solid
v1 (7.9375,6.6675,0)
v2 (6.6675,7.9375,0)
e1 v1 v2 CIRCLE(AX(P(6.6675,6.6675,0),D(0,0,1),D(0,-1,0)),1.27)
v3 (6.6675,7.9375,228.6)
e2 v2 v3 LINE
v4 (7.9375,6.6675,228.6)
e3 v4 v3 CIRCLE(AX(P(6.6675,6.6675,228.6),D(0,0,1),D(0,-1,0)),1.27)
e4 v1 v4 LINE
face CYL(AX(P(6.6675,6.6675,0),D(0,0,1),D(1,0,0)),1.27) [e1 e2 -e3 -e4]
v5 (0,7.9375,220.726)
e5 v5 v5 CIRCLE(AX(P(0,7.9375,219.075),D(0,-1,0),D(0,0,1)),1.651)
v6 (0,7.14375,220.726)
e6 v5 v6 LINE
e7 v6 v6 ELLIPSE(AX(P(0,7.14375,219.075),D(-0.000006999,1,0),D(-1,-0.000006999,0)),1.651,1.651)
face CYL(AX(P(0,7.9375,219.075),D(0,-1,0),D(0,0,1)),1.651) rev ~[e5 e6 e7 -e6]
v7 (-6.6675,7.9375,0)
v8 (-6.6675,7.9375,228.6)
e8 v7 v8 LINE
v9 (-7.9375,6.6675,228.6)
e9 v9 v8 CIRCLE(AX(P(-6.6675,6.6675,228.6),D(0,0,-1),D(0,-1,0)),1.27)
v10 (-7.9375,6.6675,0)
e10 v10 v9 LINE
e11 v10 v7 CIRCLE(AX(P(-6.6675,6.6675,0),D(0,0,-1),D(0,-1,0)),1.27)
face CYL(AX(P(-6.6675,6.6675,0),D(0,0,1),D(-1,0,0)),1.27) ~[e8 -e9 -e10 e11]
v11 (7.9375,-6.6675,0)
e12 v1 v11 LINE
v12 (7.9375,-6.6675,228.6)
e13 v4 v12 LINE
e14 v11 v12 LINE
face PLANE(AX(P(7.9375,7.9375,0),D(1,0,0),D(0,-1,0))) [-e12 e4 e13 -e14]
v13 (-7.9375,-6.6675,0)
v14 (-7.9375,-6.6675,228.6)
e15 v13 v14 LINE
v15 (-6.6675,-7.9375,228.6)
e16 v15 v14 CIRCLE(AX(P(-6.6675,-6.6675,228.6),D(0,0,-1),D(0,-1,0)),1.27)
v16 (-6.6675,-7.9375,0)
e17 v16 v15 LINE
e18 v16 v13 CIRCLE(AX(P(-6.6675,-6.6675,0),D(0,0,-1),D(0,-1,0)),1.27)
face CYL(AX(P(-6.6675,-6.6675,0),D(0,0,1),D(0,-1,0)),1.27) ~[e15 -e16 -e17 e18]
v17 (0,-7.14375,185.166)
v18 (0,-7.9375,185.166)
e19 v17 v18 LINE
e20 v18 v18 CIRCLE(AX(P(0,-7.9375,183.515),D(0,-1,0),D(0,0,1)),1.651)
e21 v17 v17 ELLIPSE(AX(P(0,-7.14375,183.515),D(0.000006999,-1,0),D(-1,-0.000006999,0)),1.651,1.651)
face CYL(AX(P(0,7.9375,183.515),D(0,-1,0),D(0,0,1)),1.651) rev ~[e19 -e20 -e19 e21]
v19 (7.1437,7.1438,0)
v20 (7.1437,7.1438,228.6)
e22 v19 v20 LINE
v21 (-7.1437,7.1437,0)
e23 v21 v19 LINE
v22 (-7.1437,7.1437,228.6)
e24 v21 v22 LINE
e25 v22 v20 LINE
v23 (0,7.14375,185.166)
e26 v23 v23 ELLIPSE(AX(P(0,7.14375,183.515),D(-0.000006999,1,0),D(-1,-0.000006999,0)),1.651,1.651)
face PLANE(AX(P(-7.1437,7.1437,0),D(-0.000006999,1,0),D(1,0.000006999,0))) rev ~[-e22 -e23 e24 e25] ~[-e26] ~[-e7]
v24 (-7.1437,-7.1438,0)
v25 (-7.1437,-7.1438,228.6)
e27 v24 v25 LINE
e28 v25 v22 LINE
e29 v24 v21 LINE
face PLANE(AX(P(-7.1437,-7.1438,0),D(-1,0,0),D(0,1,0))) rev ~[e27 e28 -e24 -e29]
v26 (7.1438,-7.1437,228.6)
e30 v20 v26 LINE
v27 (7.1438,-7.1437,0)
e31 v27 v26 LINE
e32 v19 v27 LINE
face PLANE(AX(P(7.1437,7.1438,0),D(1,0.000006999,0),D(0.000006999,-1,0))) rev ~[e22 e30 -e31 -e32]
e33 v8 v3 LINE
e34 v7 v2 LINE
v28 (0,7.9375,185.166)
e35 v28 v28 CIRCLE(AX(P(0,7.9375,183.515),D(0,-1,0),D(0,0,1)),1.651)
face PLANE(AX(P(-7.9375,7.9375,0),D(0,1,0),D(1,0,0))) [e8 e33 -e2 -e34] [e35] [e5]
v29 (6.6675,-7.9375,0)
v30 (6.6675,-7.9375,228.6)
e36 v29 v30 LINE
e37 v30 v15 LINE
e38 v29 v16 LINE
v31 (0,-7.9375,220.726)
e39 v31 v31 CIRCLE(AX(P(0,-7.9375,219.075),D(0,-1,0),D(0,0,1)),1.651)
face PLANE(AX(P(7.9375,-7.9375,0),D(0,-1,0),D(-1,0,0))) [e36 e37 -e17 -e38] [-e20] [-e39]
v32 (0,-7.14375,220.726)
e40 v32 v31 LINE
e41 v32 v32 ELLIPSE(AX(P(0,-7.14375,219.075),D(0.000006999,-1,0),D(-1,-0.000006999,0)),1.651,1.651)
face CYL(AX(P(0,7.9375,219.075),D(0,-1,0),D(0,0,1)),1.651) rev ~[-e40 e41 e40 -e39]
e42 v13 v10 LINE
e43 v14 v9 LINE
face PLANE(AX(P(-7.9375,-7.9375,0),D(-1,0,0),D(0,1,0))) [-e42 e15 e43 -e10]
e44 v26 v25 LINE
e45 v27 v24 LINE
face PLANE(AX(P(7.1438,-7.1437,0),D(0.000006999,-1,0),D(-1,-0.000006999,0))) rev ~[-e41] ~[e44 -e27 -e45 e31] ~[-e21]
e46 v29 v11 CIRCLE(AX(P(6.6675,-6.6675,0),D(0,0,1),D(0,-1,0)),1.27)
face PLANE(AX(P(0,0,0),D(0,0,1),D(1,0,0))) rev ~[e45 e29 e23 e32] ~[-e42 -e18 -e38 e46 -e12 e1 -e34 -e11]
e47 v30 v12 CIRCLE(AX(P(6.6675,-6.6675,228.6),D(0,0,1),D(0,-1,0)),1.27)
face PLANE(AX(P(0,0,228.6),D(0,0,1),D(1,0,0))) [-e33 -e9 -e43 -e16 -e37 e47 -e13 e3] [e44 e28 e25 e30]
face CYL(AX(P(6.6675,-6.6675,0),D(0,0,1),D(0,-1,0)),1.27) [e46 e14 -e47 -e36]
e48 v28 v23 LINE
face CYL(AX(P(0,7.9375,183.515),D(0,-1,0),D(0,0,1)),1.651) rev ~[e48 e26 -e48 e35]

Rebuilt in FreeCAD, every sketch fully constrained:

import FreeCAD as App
import Part
import Sketcher
Q = App.Units.Quantity


def edges_at(feature, points):
    """Names of the edges that pass closest to the given points."""
    edges = feature.Shape.Edges
    near = lambda p: min(range(len(edges)), key=lambda i: edges[i].distToShape(Part.Vertex(*p))[0])
    return sorted({f"Edge{near(p) + 1}" for p in points})


def add_polygon(sketch, points):
    """Adds a closed chain of lines whose ends are joined by coincident constraints."""
    first, n = sketch.GeometryCount, len(points)
    for a, b in zip(points, points[1:] + points[:1]):
        sketch.addGeometry(Part.LineSegment(App.Vector(*a, 0), App.Vector(*b, 0)), False)
    for i in range(n):
        sketch.addConstraint(Sketcher.Constraint("Coincident", first + i, 2, first + (i + 1) % n, 1))

doc = App.newDocument("Part")
body = doc.addObject("PartDesign::Body", "Body")

# Sketch on XY plane
sketch1 = doc.addObject("Sketcher::SketchObject", "Sketch")
body.addObject(sketch1)
sketch1.AttachmentSupport = (doc.XY_Plane, [""])
sketch1.MapMode = "FlatFace"
add_polygon(sketch1, [(-8, -8), (8, -8), (8, 8), (-8, 8)])  # lines 0-3
add_polygon(sketch1, [(7, -7), (-7, -7), (-7, 7), (7, 7)])  # lines 4-7
sketch1.addConstraint([
    Sketcher.Constraint("Horizontal", 0),
    Sketcher.Constraint("Vertical", 1),
    Sketcher.Constraint("Horizontal", 2),
    Sketcher.Constraint("Vertical", 3),
    Sketcher.Constraint("Horizontal", 4),
    Sketcher.Constraint("Vertical", 5),
    Sketcher.Constraint("Horizontal", 6),
    Sketcher.Constraint("Vertical", 7),
    Sketcher.Constraint("Symmetric", 0, 2, 2, 2, -1, 1),
    Sketcher.Constraint("Symmetric", 4, 2, 6, 2, -1, 1),
    Sketcher.Constraint("Equal", 2, 1),
    Sketcher.Constraint("Equal", 6, 5),
    Sketcher.Constraint("DistanceX", 0, 1, 0, 2, Q("0.625 in")),
    Sketcher.Constraint("DistanceX", 4, 2, 4, 1, Q("0.5625 in")),
])
pad1 = doc.addObject("PartDesign::Pad", "Pad")
body.addObject(pad1)
pad1.Profile = sketch1
pad1.Length = Q("9 in")

# Sketch on XZ plane
sketch2 = doc.addObject("Sketcher::SketchObject", "Sketch001")
body.addObject(sketch2)
sketch2.AttachmentSupport = (doc.XZ_Plane, [""])
sketch2.MapMode = "FlatFace"
sketch2.AttachmentOffset = App.Placement(App.Vector(0, 0, -0.3125 * 25.4), App.Rotation())
sketch2.addGeometry([
    Part.Circle(App.Vector(0, 219.1, 0), App.Vector(0, 0, 1), 1.7),
    Part.Circle(App.Vector(0, 183.5, 0), App.Vector(0, 0, 1), 1.7),
], False)
sketch2.addConstraint([
    Sketcher.Constraint("Equal", 0, 1),
    Sketcher.Constraint("PointOnObject", 0, 3, -2),
    Sketcher.Constraint("PointOnObject", 1, 3, -2),
    Sketcher.Constraint("Diameter", 0, Q("0.13 in")),
    Sketcher.Constraint("DistanceY", 1, 3, 0, 3, Q("1.4 in")),
    Sketcher.Constraint("DistanceY", -1, 1, 0, 3, Q("8.625 in")),
])
doc.recompute()
hole = doc.addObject("PartDesign::Hole", "Hole")
body.addObject(hole)
hole.Profile = sketch2
hole.ThreadType = "None"
hole.Diameter = Q("0.13 in")
hole.DepthType = "ThroughAll"
hole.Reversed = True
doc.recompute()

fillet = doc.addObject("PartDesign::Fillet", "Fillet")
body.addObject(fillet)
fillet.Base = (hole, edges_at(hole, [
    (-7.938, 7.938, 114.3),
    (7.938, 7.938, 114.3),
    (7.938, -7.938, 114.3),
    (-7.938, -7.938, 114.3),
]))
fillet.Radius = Q("0.05 in")

doc.recompute()
